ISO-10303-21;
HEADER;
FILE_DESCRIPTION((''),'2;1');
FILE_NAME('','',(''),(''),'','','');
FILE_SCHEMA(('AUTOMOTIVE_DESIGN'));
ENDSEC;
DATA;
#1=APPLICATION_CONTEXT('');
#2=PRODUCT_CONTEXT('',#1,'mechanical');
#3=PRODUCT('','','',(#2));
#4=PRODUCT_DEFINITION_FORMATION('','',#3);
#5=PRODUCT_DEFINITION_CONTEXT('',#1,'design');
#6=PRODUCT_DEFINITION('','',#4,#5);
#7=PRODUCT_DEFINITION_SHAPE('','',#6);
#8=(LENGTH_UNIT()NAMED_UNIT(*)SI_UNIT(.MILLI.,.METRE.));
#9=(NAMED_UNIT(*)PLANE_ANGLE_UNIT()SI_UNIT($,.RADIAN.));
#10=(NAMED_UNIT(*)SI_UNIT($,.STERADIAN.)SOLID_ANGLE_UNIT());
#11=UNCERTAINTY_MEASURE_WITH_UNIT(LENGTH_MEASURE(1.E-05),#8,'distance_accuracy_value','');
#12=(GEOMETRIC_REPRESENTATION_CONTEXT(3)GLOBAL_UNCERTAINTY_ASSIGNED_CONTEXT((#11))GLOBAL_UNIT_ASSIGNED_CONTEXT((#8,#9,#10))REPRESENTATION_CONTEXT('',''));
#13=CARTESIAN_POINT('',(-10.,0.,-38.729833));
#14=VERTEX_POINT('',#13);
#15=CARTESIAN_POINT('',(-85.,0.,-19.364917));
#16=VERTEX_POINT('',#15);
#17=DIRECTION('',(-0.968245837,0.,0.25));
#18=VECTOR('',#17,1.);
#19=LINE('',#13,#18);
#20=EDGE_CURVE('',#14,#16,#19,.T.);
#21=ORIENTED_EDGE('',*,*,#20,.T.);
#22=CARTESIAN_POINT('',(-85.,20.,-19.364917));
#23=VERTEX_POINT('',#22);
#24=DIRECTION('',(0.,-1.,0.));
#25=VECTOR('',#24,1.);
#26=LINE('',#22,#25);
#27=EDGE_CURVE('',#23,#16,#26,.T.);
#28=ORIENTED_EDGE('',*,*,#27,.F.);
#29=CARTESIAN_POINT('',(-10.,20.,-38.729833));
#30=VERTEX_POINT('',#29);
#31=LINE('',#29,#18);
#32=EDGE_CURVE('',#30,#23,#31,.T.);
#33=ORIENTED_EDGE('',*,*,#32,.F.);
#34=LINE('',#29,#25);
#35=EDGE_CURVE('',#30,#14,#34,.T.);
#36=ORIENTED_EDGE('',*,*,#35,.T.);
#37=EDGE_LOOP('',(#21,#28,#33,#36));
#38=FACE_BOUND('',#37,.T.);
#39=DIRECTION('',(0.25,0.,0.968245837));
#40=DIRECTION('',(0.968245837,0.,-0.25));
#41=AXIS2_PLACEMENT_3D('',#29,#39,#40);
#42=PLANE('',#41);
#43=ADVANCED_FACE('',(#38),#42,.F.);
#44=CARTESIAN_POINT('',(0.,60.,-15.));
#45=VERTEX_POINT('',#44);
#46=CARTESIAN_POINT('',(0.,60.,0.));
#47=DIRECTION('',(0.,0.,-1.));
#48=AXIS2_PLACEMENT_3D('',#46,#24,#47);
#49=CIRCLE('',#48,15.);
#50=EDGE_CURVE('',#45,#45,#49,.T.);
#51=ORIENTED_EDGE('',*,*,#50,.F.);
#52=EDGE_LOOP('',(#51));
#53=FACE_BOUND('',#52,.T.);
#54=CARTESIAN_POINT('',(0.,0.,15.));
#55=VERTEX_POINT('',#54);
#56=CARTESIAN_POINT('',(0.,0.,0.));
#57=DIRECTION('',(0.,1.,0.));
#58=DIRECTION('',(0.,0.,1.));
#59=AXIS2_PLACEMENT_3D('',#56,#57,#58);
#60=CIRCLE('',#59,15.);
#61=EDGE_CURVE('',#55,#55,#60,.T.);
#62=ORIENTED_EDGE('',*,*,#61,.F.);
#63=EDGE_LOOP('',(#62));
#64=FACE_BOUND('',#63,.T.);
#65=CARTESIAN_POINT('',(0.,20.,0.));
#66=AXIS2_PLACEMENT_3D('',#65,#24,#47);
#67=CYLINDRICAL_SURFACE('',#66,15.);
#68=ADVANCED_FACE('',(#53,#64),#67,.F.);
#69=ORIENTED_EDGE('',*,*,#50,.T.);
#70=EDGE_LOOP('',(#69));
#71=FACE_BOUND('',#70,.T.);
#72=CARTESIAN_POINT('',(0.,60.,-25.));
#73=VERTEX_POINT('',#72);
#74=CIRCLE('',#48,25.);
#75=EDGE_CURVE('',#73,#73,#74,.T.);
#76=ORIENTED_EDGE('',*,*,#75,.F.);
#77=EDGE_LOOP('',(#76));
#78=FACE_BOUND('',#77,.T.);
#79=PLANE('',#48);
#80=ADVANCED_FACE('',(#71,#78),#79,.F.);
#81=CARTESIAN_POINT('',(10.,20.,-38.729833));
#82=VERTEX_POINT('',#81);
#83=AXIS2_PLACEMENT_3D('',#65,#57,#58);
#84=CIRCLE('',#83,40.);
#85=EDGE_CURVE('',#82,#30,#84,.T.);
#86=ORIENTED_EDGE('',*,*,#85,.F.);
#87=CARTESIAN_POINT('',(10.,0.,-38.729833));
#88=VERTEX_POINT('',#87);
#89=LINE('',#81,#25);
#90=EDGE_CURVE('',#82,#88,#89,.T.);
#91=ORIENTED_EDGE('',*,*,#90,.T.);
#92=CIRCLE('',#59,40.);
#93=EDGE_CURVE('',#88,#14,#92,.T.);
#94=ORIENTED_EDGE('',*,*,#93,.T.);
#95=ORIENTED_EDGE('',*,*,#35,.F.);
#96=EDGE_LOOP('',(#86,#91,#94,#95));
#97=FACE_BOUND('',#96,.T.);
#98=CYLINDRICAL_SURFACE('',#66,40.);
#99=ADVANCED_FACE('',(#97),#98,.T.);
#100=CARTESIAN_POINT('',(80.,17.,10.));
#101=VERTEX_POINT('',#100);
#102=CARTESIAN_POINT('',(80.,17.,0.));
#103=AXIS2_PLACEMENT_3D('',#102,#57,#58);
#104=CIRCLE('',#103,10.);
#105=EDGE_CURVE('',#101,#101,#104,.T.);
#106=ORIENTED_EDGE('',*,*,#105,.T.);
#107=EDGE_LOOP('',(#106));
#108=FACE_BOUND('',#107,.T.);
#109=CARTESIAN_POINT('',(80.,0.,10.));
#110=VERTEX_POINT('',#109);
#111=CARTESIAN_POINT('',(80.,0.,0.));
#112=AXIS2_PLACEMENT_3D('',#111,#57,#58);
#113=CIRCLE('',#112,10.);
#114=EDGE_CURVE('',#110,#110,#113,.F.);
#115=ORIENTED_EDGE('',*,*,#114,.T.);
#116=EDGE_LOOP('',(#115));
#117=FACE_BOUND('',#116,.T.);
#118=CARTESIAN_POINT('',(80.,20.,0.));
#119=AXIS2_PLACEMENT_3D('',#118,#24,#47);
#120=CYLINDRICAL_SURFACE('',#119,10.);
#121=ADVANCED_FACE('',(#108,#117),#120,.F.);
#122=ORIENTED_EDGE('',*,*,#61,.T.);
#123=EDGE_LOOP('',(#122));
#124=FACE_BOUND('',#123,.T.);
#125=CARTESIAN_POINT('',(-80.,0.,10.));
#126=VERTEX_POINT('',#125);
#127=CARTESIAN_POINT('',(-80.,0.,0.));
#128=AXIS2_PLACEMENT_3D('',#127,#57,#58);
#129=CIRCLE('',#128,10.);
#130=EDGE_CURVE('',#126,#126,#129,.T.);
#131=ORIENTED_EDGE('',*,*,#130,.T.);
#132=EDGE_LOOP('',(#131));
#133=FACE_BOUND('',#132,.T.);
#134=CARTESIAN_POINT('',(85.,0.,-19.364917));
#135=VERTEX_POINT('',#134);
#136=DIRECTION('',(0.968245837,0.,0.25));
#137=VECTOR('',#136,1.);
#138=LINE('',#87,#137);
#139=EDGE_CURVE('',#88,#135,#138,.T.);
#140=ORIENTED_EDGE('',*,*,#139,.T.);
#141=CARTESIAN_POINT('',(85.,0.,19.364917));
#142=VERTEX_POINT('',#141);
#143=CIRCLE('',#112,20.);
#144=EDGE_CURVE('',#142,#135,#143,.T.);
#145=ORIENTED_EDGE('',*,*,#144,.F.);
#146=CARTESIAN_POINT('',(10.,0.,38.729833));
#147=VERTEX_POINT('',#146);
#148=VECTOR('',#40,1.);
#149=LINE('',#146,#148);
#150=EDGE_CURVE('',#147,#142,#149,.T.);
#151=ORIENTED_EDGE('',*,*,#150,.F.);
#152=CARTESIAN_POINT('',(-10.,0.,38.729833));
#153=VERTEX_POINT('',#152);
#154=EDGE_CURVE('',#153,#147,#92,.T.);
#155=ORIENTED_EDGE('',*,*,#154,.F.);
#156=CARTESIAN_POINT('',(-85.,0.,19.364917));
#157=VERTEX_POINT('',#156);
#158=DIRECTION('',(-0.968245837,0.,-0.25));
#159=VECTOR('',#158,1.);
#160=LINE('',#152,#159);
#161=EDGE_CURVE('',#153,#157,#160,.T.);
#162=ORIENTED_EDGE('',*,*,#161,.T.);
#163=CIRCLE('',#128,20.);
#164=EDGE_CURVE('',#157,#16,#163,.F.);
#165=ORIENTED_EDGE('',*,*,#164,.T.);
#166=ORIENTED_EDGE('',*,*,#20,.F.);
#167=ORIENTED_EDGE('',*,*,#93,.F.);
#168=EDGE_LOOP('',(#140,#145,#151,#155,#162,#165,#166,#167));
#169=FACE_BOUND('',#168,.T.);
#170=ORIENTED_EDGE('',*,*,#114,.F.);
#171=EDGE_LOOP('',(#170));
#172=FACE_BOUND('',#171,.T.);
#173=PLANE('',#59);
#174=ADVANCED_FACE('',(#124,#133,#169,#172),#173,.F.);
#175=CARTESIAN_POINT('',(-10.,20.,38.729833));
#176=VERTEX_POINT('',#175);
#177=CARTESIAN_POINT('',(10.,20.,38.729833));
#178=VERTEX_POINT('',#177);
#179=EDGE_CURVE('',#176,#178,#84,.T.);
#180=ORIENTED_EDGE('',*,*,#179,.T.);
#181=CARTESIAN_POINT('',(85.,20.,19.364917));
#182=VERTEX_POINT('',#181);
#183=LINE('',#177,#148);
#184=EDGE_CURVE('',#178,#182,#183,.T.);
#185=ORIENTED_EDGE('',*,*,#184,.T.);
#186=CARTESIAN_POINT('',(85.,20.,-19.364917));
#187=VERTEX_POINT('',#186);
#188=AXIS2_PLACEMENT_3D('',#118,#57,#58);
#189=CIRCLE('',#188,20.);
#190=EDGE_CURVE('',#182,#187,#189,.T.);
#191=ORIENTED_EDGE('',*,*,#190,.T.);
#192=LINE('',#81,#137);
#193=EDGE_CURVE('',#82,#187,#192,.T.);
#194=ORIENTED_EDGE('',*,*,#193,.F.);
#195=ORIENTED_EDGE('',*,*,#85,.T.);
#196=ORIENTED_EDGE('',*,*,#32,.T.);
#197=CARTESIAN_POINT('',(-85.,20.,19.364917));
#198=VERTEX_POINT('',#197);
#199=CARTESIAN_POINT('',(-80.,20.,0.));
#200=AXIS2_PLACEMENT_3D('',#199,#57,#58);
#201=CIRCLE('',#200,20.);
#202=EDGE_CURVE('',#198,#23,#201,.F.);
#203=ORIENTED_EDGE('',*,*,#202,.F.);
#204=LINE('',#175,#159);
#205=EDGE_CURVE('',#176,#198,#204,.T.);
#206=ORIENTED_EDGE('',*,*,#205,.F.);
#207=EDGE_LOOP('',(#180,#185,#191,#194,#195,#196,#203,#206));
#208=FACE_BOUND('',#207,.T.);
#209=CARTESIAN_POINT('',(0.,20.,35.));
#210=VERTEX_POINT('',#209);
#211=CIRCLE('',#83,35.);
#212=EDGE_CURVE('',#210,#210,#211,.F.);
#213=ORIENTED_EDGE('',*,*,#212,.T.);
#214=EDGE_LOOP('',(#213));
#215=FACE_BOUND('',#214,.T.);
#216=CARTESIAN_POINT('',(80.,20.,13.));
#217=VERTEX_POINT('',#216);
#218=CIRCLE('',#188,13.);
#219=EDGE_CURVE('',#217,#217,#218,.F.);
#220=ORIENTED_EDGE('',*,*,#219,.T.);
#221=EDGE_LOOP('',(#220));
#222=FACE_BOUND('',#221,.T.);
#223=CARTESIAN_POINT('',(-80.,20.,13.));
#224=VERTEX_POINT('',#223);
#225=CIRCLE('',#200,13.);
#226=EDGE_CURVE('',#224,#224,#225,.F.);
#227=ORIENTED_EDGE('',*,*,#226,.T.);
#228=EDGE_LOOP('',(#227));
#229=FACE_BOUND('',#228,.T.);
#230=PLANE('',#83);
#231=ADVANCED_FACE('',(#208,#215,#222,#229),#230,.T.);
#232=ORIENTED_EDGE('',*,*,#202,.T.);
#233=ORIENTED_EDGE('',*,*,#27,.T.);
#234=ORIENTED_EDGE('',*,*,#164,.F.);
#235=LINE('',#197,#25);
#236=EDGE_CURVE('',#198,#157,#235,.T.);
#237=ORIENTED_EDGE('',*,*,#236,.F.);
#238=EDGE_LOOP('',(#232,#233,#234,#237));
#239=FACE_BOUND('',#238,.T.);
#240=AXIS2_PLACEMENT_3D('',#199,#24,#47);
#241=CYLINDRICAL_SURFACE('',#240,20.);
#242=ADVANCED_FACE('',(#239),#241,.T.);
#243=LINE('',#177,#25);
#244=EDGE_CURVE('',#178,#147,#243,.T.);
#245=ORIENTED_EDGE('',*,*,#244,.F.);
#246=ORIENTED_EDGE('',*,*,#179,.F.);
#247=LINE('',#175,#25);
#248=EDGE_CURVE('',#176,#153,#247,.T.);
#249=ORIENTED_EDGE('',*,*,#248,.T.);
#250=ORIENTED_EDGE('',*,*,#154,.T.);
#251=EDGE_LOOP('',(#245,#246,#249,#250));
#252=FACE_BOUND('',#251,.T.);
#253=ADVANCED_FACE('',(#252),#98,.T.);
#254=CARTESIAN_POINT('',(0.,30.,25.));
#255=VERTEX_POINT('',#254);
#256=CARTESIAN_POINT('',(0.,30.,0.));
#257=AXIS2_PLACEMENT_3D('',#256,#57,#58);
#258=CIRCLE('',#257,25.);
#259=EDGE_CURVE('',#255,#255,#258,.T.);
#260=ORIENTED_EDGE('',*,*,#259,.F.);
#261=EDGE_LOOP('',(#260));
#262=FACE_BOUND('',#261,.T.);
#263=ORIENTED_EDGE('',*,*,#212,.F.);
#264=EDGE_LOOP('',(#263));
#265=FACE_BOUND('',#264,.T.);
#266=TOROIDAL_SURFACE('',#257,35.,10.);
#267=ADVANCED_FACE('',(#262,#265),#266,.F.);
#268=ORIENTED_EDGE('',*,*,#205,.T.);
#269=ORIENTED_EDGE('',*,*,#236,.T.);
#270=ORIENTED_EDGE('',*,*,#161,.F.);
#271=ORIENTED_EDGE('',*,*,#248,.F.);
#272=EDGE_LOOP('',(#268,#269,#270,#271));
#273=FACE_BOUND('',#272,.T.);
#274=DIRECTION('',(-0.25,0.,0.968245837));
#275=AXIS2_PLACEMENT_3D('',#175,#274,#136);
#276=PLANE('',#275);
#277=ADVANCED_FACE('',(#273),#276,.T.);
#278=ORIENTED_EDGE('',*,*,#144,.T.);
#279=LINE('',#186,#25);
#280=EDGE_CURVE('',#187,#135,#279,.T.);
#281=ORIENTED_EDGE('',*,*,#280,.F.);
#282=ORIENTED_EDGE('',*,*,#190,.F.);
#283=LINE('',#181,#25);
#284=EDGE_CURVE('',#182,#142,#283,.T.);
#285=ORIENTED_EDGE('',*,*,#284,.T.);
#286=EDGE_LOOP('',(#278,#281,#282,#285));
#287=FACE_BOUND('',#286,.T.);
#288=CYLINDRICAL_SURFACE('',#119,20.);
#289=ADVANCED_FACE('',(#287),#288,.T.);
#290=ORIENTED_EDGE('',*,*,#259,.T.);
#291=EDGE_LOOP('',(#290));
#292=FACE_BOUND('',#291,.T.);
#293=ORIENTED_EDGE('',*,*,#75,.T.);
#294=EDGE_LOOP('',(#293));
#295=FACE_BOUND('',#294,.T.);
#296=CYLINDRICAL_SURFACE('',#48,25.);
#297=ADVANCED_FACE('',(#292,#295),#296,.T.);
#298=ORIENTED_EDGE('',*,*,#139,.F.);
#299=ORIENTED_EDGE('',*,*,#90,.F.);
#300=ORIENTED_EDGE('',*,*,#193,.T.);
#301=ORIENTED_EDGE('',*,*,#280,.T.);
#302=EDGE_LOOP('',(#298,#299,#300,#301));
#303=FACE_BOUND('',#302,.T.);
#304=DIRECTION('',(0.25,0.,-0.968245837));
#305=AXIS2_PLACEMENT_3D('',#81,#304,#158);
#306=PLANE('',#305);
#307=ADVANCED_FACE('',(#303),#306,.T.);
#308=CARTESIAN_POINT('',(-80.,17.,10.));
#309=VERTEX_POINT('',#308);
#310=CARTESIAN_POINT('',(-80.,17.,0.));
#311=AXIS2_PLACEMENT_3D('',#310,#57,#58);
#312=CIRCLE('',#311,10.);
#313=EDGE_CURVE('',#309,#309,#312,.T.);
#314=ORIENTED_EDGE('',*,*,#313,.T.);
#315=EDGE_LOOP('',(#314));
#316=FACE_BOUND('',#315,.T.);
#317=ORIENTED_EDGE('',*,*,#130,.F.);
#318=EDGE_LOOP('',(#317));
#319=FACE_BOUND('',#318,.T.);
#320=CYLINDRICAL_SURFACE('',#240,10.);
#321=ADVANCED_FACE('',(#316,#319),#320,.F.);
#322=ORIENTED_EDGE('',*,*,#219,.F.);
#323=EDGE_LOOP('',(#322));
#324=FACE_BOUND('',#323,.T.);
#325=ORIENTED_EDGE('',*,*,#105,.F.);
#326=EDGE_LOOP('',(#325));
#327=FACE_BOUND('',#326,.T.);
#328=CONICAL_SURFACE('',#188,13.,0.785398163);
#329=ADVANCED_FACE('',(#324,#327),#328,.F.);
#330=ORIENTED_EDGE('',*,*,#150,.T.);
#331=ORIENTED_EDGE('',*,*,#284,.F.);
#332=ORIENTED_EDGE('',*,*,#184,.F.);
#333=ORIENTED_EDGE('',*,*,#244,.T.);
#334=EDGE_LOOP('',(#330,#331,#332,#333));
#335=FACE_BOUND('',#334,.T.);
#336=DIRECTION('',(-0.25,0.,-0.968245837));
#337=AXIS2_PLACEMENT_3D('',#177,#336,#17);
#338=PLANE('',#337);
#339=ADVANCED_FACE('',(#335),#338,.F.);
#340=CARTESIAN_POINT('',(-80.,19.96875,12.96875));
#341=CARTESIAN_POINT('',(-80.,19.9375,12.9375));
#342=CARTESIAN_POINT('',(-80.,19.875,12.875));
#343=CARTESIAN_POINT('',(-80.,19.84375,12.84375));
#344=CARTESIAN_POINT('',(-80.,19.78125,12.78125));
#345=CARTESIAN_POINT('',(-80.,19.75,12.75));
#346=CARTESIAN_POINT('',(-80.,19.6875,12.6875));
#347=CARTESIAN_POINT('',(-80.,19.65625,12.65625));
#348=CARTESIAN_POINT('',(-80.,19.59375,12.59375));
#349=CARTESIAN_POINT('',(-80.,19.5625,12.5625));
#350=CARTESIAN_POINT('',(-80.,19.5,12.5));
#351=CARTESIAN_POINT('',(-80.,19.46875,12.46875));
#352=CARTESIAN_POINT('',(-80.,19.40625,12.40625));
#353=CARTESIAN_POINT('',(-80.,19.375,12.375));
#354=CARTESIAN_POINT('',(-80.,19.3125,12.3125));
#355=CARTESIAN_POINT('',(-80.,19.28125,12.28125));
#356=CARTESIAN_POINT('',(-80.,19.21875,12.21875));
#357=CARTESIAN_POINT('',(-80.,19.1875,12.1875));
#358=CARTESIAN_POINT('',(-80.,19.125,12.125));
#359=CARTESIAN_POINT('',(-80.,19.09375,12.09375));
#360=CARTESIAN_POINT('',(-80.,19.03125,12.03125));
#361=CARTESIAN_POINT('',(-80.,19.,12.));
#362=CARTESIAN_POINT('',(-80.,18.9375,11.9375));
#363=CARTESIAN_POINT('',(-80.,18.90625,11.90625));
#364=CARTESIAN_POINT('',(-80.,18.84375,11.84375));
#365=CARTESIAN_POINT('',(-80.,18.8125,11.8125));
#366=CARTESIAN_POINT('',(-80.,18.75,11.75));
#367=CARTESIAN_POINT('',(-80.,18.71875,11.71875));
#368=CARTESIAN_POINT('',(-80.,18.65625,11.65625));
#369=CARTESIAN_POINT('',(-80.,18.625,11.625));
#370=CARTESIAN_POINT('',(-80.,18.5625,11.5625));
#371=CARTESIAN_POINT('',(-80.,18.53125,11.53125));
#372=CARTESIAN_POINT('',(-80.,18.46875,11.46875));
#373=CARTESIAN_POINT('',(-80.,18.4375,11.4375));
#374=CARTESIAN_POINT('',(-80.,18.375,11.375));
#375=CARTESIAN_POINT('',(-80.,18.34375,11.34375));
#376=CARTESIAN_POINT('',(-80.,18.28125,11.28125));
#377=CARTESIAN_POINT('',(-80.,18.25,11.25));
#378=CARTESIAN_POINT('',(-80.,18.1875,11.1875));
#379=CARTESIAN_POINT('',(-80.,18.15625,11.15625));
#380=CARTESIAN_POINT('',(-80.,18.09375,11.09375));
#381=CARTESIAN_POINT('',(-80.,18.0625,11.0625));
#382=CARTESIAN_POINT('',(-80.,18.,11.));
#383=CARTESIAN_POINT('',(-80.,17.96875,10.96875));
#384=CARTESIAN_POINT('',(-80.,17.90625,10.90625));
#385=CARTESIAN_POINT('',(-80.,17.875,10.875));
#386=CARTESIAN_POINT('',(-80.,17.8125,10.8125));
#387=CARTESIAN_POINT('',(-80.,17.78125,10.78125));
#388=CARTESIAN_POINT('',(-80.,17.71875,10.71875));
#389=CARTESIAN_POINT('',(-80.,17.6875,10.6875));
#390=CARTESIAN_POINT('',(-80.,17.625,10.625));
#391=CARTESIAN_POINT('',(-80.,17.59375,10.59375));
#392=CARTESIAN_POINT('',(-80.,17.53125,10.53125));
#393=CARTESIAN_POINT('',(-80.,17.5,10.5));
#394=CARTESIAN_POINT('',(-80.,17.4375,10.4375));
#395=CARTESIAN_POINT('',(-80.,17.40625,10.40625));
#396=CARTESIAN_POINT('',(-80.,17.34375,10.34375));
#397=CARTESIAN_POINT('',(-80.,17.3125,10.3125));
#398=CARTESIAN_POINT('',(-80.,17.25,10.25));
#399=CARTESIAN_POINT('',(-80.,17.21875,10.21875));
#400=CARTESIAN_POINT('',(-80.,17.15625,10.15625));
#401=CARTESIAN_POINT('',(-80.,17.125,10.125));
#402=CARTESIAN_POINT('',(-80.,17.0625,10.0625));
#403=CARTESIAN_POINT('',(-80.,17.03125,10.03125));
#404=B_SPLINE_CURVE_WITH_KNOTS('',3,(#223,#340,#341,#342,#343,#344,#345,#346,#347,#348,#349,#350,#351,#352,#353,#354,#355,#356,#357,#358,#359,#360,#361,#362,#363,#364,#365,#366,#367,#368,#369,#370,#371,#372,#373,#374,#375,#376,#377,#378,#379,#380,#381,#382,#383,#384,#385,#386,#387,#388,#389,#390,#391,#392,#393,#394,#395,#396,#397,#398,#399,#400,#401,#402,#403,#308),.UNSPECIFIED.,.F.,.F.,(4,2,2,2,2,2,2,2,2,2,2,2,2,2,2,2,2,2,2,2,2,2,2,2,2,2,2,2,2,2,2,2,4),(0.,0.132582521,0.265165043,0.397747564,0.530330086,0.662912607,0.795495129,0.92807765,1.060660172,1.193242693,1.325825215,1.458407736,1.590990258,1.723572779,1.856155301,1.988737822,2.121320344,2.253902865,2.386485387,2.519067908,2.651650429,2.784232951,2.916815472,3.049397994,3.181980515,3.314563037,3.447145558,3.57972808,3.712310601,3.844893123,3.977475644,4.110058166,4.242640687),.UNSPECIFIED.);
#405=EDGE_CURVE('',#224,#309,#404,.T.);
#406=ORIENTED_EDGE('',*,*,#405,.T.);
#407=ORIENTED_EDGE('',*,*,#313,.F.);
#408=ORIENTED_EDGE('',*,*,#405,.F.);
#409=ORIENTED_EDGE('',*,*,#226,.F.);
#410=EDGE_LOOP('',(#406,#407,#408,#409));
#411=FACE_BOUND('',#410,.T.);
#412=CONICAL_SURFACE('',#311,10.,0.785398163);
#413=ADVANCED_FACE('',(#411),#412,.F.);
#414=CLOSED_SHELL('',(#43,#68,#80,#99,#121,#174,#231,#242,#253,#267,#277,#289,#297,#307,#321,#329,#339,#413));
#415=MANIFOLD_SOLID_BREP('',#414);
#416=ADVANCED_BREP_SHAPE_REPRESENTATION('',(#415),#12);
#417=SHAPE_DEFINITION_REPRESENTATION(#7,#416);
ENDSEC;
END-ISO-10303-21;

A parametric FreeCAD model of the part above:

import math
import FreeCAD as App
import Part
import Sketcher

V = App.Vector
Q = App.Units.Quantity


def edges_at(feature, points):
    """Names of the edges that pass closest to the given points."""
    edges = feature.Shape.Edges
    near = lambda p: min(range(len(edges)), key=lambda i: edges[i].distToShape(Part.Vertex(*p))[0])
    return sorted({f"Edge{near(p) + 1}" for p in points})

doc = App.newDocument("Part")
body = doc.addObject("PartDesign::Body", "Body")

sketch1 = body.newObject("Sketcher::SketchObject", "Sketch")
sketch1.AttachmentSupport = (doc.getObject("XZ_Plane"), [""])
sketch1.MapMode = "FlatFace"
sketch1.addGeometry(Part.LineSegment(V(-85, 19, 0), V(-10, 39, 0)), False)
sketch1.addGeometry(Part.ArcOfCircle(Part.Circle(V(0, 0, 0), V(0, 0, 1), 40), math.radians(76), math.radians(104)), False)
sketch1.addGeometry(Part.LineSegment(V(10, 39, 0), V(85, 19, 0)), False)
sketch1.addGeometry(Part.ArcOfCircle(Part.Circle(V(80, 0, 0), V(0, 0, 1), 20), math.radians(-76), math.radians(76)), False)
sketch1.addGeometry(Part.LineSegment(V(85, -19, 0), V(10, -39, 0)), False)
sketch1.addGeometry(Part.ArcOfCircle(Part.Circle(V(0, 0, 0), V(0, 0, 1), 40), math.radians(-104), math.radians(-76)), False)
sketch1.addGeometry(Part.LineSegment(V(-10, -39, 0), V(-85, -19, 0)), False)
sketch1.addGeometry(Part.ArcOfCircle(Part.Circle(V(-80, 0, 0), V(0, 0, 1), 20), math.radians(104), math.radians(256)), False)
sketch1.addGeometry(Part.Circle(V(-80, 0, 0), V(0, 0, 1), 10), False)
sketch1.addGeometry(Part.Circle(V(80, 0, 0), V(0, 0, 1), 10), False)
sketch1.addGeometry(Part.Circle(V(0, 0, 0), V(0, 0, 1), 15), False)
sketch1.addConstraint(Sketcher.Constraint("Tangent", 0, 2, 1, 2))
sketch1.addConstraint(Sketcher.Constraint("Tangent", 1, 1, 2, 1))
sketch1.addConstraint(Sketcher.Constraint("Tangent", 2, 2, 3, 2))
sketch1.addConstraint(Sketcher.Constraint("Tangent", 3, 1, 4, 1))
sketch1.addConstraint(Sketcher.Constraint("Tangent", 4, 2, 5, 2))
sketch1.addConstraint(Sketcher.Constraint("Tangent", 5, 1, 6, 1))
sketch1.addConstraint(Sketcher.Constraint("Tangent", 6, 2, 7, 2))
sketch1.addConstraint(Sketcher.Constraint("Tangent", 7, 1, 0, 1))
sketch1.addConstraint(Sketcher.Constraint("Coincident", 1, 3, -1, 1))
sketch1.addConstraint(Sketcher.Constraint("Coincident", 5, 3, -1, 1))
sketch1.addConstraint(Sketcher.Constraint("Coincident", 10, 3, -1, 1))
sketch1.addConstraint(Sketcher.Constraint("Coincident", 8, 3, 7, 3))
sketch1.addConstraint(Sketcher.Constraint("Coincident", 9, 3, 3, 3))
sketch1.addConstraint(Sketcher.Constraint("Equal", 1, 5))
sketch1.addConstraint(Sketcher.Constraint("Equal", 3, 7))
sketch1.addConstraint(Sketcher.Constraint("Equal", 8, 9))
sketch1.addConstraint(Sketcher.Constraint("Symmetric", 3, 3, 7, 3, -1, 1))
sketch1.addConstraint(Sketcher.Constraint("PointOnObject", 3, 3, -1))
sketch1.addConstraint(Sketcher.Constraint("Diameter", 8, Q("20 mm")))
sketch1.addConstraint(Sketcher.Constraint("Diameter", 10, Q("30 mm")))
sketch1.addConstraint(Sketcher.Constraint("Radius", 1, Q("40 mm")))
sketch1.addConstraint(Sketcher.Constraint("Radius", 3, Q("20 mm")))
sketch1.addConstraint(Sketcher.Constraint("DistanceX", -1, 1, 3, 3, Q("80 mm")))
pad1 = body.newObject("PartDesign::Pad", "Pad")
pad1.Profile = sketch1
pad1.Length = 20
pad1.Reversed = True

sketch2 = body.newObject("Sketcher::SketchObject", "Sketch001")
sketch2.AttachmentSupport = (doc.getObject("XZ_Plane"), [""])
sketch2.MapMode = "FlatFace"
sketch2.addGeometry(Part.Circle(V(0, 0, 0), V(0, 0, 1), 25), False)
sketch2.addGeometry(Part.Circle(V(0, 0, 0), V(0, 0, 1), 15), False)
sketch2.addConstraint(Sketcher.Constraint("Coincident", 0, 3, -1, 1))
sketch2.addConstraint(Sketcher.Constraint("Coincident", 1, 3, -1, 1))
sketch2.addConstraint(Sketcher.Constraint("Diameter", 0, Q("50 mm")))
sketch2.addConstraint(Sketcher.Constraint("Diameter", 1, Q("30 mm")))
pad2 = body.newObject("PartDesign::Pad", "Pad001")
pad2.Profile = sketch2
pad2.Length = 60
pad2.Reversed = True
doc.recompute()

chamfer = body.newObject("PartDesign::Chamfer", "Chamfer")
chamfer.Base = (pad2, edges_at(pad2, [(-80, 20, -10)]))
chamfer.Size = 3
doc.recompute()

fillet = body.newObject("PartDesign::Fillet", "Fillet")
fillet.Base = (chamfer, edges_at(chamfer, [(0, 20, 25)]))
fillet.Radius = 10
doc.recompute()

chamfer2 = body.newObject("PartDesign::Chamfer", "Chamfer001")
chamfer2.Base = (fillet, edges_at(fillet, [(80, 20, -10)]))
chamfer2.Size = 3

doc.recompute()
